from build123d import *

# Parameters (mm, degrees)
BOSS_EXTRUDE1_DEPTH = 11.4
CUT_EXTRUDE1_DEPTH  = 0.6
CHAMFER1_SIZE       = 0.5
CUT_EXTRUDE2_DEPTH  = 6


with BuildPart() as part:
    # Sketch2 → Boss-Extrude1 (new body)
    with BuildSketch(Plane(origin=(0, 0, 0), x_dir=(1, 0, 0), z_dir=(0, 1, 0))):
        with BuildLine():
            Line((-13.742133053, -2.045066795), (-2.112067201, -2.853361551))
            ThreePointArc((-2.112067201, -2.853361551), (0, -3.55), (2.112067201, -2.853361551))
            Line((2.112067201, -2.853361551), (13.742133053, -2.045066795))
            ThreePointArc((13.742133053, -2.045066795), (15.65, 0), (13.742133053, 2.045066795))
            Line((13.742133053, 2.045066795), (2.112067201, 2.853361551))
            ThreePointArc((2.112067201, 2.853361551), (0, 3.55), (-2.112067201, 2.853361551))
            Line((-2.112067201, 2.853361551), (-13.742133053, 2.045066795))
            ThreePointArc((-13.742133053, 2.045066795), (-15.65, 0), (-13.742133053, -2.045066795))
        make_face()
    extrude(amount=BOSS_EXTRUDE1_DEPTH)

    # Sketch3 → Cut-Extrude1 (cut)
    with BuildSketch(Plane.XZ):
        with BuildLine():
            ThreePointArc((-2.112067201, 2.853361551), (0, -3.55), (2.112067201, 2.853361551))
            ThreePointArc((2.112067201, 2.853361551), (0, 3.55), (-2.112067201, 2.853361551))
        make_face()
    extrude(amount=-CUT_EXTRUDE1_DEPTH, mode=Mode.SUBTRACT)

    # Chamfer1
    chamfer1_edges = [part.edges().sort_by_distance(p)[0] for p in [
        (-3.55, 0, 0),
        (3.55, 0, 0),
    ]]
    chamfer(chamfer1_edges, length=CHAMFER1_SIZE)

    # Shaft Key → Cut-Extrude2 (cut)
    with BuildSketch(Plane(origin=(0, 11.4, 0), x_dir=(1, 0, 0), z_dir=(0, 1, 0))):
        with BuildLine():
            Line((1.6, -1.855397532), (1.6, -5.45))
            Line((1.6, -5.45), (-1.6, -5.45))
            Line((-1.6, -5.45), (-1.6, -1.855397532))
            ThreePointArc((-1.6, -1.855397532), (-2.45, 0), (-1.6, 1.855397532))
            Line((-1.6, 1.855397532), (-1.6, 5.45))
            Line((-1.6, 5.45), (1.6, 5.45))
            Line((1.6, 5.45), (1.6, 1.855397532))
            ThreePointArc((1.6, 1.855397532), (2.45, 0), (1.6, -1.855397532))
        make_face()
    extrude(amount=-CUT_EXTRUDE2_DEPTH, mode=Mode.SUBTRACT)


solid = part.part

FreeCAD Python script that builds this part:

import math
import FreeCAD as App
import Part
import Sketcher
from FreeCAD import Vector


def edges_at(feature, points):
    """Names of the edges that pass closest to the given points."""
    edges = feature.Shape.Edges
    near = lambda p: min(range(len(edges)), key=lambda i: edges[i].distToShape(Part.Vertex(*p))[0])
    return sorted({f"Edge{near(p) + 1}" for p in points})

doc = App.newDocument("Part")
params = doc.addObject("Spreadsheet::Sheet", "Params")
for row, (alias, value) in enumerate([
    ("sketch1_radius", "3.55 mm"),
    ("sketch1_radius2", "2.05 mm"),
    ("pad1_length", "11.4 mm"),
    ("sketch2_radius", "3.55 mm"),
    ("pocket1_length", "0.6 mm"),
    ("chamfer_size", "0.5 mm"),
    ("sketch3_radius", "2.45 mm"),
    ("sketch3_width", "3.2 mm"),
    ("pocket2_length", "6 mm"),
], start=1):
    params.set(f"A{row}", alias)
    params.set(f"B{row}", "=" + value)
    params.setAlias(f"B{row}", alias)

body = doc.addObject("PartDesign::Body", "Body")

# Sketch on XZ plane
sketch1 = body.newObject("Sketcher::SketchObject", "Sketch")
sketch1.AttachmentSupport = (doc.getObject("XZ_Plane"), [""])
sketch1.MapMode = "FlatFace"
sketch1.addGeometry(Part.LineSegment(Vector(-13.742133, 2.045067, 0), Vector(-2.112067, 2.853362, 0)), False)
sketch1.addGeometry(Part.ArcOfCircle(Part.Circle(Vector(0, 0, 0), Vector(0, 0, 1), 3.55), math.radians(53.491039), math.radians(126.508961)), False)
sketch1.addGeometry(Part.LineSegment(Vector(2.112067, 2.853362, 0), Vector(13.742133, 2.045067, 0)), False)
sketch1.addGeometry(Part.ArcOfCircle(Part.Circle(Vector(13.6, 0, 0), Vector(0, 0, 1), 2.05), math.radians(-86.024311), math.radians(86.024311)), False)
sketch1.addGeometry(Part.LineSegment(Vector(13.742133, -2.045067, 0), Vector(2.112067, -2.853362, 0)), False)
sketch1.addGeometry(Part.ArcOfCircle(Part.Circle(Vector(0, 0, 0), Vector(0, 0, 1), 3.55), math.radians(-126.508961), math.radians(-53.491039)), False)
sketch1.addGeometry(Part.LineSegment(Vector(-2.112067, -2.853362, 0), Vector(-13.742133, -2.045067, 0)), False)
sketch1.addGeometry(Part.ArcOfCircle(Part.Circle(Vector(-13.6, 0, 0), Vector(0, 0, 1), 2.05), math.radians(93.975689), math.radians(266.024311)), False)
sketch1.addConstraint(Sketcher.Constraint("Coincident", 0, 2, 1, 2))
sketch1.addConstraint(Sketcher.Constraint("Coincident", 1, 1, 2, 1))
sketch1.addConstraint(Sketcher.Constraint("Tangent", 2, 2, 3, 2))
sketch1.addConstraint(Sketcher.Constraint("Tangent", 3, 1, 4, 1))
sketch1.addConstraint(Sketcher.Constraint("Coincident", 4, 2, 5, 2))
sketch1.addConstraint(Sketcher.Constraint("Coincident", 5, 1, 6, 1))
sketch1.addConstraint(Sketcher.Constraint("Tangent", 6, 2, 7, 2))
sketch1.addConstraint(Sketcher.Constraint("Tangent", 7, 1, 0, 1))
sketch1.addConstraint(Sketcher.Constraint("Coincident", 1, 3, -1, 1))
sketch1.addConstraint(Sketcher.Constraint("Coincident", 5, 3, -1, 1))
sketch1.addConstraint(Sketcher.Constraint("Equal", 1, 5))
sketch1.addConstraint(Sketcher.Constraint("Equal", 3, 7))
sketch1.addConstraint(Sketcher.Constraint("Symmetric", 3, 3, 7, 3, -1, 1))
sketch1.addConstraint(Sketcher.Constraint("Symmetric", 3, 1, 6, 2, -2))
sketch1.addConstraint(Sketcher.Constraint("Parallel", 0, 4))
sketch1.addConstraint(Sketcher.Constraint("Parallel", 2, 6))
sketch1.addConstraint(Sketcher.Constraint("Radius", 1, 3.55))
sketch1.addConstraint(Sketcher.Constraint("Radius", 3, 2.05))
sketch1.addConstraint(Sketcher.Constraint("DistanceX", -1, 1, 3, 3, 13.6))
sketch1.addConstraint(Sketcher.Constraint("DistanceX", 0, 2, 2, 2, 15.8542))
sketch1.setExpression("Constraints[16]", "Params.sketch1_radius")
sketch1.setExpression("Constraints[17]", "Params.sketch1_radius2")
pad1 = body.newObject("PartDesign::Pad", "Pad")
pad1.Profile = sketch1
pad1.setExpression("Length", "Params.pad1_length")
pad1.Reversed = True

# Sketch on XZ plane
sketch2 = body.newObject("Sketcher::SketchObject", "Sketch001")
sketch2.AttachmentSupport = (doc.getObject("XZ_Plane"), [""])
sketch2.MapMode = "FlatFace"
sketch2.addGeometry(Part.ArcOfCircle(Part.Circle(Vector(0, 0, 0), Vector(0, 0, 1), 3.55), math.radians(126.508961), math.radians(413.491039)), False)
sketch2.addGeometry(Part.ArcOfCircle(Part.Circle(Vector(0, 0, 0), Vector(0, 0, 1), 3.55), math.radians(53.491039), math.radians(126.508961)), False)
sketch2.addConstraint(Sketcher.Constraint("Tangent", 0, 1, 1, 2))
sketch2.addConstraint(Sketcher.Constraint("Coincident", 1, 1, 0, 2))
sketch2.addConstraint(Sketcher.Constraint("Coincident", 0, 3, -1, 1))
sketch2.addConstraint(Sketcher.Constraint("Horizontal", 0, 1, 1, 1))
sketch2.addConstraint(Sketcher.Constraint("Radius", 0, 3.55))
sketch2.addConstraint(Sketcher.Constraint("DistanceY", -1, 1, 0, 1, 2.853362))
sketch2.setExpression("Constraints[4]", "Params.sketch2_radius")
pocket1 = body.newObject("PartDesign::Pocket", "Pocket")
pocket1.Profile = sketch2
pocket1.setExpression("Length", "Params.pocket1_length")
doc.recompute()

chamfer = body.newObject("PartDesign::Chamfer", "Chamfer")
chamfer.Base = (pocket1, edges_at(pocket1, [(-3.55, 0, 0), (3.55, 0, 0)]))
chamfer.setExpression("Size", "Params.chamfer_size")

# Sketch on XZ plane
sketch3 = body.newObject("Sketcher::SketchObject", "Sketch002")
sketch3.AttachmentSupport = (doc.getObject("XZ_Plane"), [""])
sketch3.MapMode = "FlatFace"
sketch3.AttachmentOffset = App.Placement(Vector(0, 0, -11.4), App.Rotation())
sketch3.addGeometry(Part.LineSegment(Vector(1.6, 5.45, 0), Vector(1.6, 1.855398, 0)), False)
sketch3.addGeometry(Part.ArcOfCircle(Part.Circle(Vector(0, 0, 0), Vector(0, 0, 1), 2.45), math.radians(-49.227195), math.radians(49.227195)), False)
sketch3.addGeometry(Part.LineSegment(Vector(1.6, -1.855398, 0), Vector(1.6, -5.45, 0)), False)
sketch3.addGeometry(Part.LineSegment(Vector(1.6, -5.45, 0), Vector(-1.6, -5.45, 0)), False)
sketch3.addGeometry(Part.LineSegment(Vector(-1.6, -5.45, 0), Vector(-1.6, -1.855398, 0)), False)
sketch3.addGeometry(Part.ArcOfCircle(Part.Circle(Vector(0, 0, 0), Vector(0, 0, 1), 2.45), math.radians(130.772805), math.radians(229.227195)), False)
sketch3.addGeometry(Part.LineSegment(Vector(-1.6, 1.855398, 0), Vector(-1.6, 5.45, 0)), False)
sketch3.addGeometry(Part.LineSegment(Vector(-1.6, 5.45, 0), Vector(1.6, 5.45, 0)), False)
sketch3.addConstraint(Sketcher.Constraint("Coincident", 0, 2, 1, 2))
sketch3.addConstraint(Sketcher.Constraint("Coincident", 1, 1, 2, 1))
sketch3.addConstraint(Sketcher.Constraint("Coincident", 2, 2, 3, 1))
sketch3.addConstraint(Sketcher.Constraint("Coincident", 3, 2, 4, 1))
sketch3.addConstraint(Sketcher.Constraint("Coincident", 4, 2, 5, 2))
sketch3.addConstraint(Sketcher.Constraint("Coincident", 5, 1, 6, 1))
sketch3.addConstraint(Sketcher.Constraint("Coincident", 6, 2, 7, 1))
sketch3.addConstraint(Sketcher.Constraint("Coincident", 7, 2, 0, 1))
sketch3.addConstraint(Sketcher.Constraint("Vertical", 0))
sketch3.addConstraint(Sketcher.Constraint("Vertical", 2))
sketch3.addConstraint(Sketcher.Constraint("Horizontal", 3))
sketch3.addConstraint(Sketcher.Constraint("Vertical", 4))
sketch3.addConstraint(Sketcher.Constraint("Vertical", 6))
sketch3.addConstraint(Sketcher.Constraint("Horizontal", 7))
sketch3.addConstraint(Sketcher.Constraint("Coincident", 1, 3, -1, 1))
sketch3.addConstraint(Sketcher.Constraint("Coincident", 5, 3, -1, 1))
sketch3.addConstraint(Sketcher.Constraint("Equal", 1, 5))
sketch3.addConstraint(Sketcher.Constraint("Symmetric", 2, 2, 6, 2, -1, 1))
sketch3.addConstraint(Sketcher.Constraint("Horizontal", 1, 1, 4, 2))
sketch3.addConstraint(Sketcher.Constraint("Horizontal", 0, 2, 5, 1))
sketch3.addConstraint(Sketcher.Constraint("Radius", 1, 2.45))
sketch3.addConstraint(Sketcher.Constraint("DistanceX", 3, 2, 3, 1, 3.2))
sketch3.addConstraint(Sketcher.Constraint("DistanceY", 2, 2, -1, 1, 5.45))
sketch3.setExpression("Constraints[20]", "Params.sketch3_radius")
sketch3.setExpression("Constraints[21]", "Params.sketch3_width")
pocket2 = body.newObject("PartDesign::Pocket", "Pocket001")
pocket2.Profile = sketch3
pocket2.setExpression("Length", "Params.pocket2_length")
pocket2.Reversed = True

doc.recompute()
